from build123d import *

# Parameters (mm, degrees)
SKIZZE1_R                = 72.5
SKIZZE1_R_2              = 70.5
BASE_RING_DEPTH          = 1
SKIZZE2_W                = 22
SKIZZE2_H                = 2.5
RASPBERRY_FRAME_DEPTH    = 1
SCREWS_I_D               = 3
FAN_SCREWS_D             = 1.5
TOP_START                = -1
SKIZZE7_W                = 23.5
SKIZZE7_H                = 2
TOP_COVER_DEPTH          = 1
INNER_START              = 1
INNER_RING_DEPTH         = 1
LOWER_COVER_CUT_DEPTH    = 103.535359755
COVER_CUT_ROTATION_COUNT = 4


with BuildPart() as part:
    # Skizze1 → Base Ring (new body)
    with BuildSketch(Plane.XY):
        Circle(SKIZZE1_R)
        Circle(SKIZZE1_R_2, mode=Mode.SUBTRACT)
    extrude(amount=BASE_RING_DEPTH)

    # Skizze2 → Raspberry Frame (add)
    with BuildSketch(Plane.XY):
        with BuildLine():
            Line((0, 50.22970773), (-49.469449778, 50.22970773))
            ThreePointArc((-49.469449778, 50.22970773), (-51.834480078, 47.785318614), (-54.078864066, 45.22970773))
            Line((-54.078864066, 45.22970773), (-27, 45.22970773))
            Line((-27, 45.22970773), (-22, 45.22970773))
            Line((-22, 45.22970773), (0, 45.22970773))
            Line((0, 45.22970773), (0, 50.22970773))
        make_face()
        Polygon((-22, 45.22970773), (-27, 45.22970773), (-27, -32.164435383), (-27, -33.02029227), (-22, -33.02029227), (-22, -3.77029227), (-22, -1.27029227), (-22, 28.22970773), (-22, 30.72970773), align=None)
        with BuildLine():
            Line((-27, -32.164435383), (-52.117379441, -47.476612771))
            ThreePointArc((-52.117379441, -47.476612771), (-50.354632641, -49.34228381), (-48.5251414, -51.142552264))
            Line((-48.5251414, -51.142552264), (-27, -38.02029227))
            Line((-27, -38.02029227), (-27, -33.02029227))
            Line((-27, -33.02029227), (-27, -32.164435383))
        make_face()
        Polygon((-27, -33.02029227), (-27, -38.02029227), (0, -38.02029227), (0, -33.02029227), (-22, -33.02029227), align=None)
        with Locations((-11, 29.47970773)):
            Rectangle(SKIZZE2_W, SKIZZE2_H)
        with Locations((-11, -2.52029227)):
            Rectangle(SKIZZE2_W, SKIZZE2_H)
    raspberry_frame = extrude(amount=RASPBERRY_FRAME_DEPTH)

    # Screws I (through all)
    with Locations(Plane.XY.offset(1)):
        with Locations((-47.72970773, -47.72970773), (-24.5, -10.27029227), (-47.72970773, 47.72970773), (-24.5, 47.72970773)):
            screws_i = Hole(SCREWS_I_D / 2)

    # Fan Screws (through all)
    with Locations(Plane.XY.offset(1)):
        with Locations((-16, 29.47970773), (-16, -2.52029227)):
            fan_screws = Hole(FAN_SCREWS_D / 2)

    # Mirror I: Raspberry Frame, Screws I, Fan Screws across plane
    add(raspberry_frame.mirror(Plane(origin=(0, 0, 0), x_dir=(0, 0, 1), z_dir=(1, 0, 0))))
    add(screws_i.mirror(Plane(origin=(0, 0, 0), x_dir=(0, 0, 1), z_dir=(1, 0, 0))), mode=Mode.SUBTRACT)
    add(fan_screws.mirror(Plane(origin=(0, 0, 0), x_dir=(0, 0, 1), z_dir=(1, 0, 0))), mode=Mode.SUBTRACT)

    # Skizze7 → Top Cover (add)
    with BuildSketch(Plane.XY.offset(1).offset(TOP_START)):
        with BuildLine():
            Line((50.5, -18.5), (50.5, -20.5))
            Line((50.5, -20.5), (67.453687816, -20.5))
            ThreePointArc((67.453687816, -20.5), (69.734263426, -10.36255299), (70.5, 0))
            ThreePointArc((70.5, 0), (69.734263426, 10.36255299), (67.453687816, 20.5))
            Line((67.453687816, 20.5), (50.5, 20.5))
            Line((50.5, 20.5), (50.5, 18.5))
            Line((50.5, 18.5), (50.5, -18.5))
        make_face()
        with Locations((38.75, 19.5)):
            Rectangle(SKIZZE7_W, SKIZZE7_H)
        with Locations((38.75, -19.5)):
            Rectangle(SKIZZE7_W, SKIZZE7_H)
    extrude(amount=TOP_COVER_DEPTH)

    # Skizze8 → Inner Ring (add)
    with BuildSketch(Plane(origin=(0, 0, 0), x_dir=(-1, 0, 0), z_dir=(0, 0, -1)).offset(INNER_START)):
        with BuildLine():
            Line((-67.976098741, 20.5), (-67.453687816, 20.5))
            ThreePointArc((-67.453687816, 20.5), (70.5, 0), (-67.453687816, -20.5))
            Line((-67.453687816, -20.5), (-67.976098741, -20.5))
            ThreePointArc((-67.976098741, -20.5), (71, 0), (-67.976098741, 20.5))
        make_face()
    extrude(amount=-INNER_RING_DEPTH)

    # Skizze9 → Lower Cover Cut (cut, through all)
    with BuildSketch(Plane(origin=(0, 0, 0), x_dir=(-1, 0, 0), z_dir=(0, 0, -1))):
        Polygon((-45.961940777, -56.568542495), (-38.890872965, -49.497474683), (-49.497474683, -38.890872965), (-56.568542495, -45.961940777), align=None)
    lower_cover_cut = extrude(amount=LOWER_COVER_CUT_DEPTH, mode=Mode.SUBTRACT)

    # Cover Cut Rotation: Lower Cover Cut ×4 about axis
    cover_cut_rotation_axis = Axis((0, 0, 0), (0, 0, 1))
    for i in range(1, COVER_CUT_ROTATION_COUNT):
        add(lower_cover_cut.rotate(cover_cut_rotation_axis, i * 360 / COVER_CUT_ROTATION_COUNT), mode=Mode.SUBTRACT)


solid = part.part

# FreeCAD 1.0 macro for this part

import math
import FreeCAD as App
import Part
import Sketcher
Q = App.Units.Quantity


def add_polygon(sketch, points):
    """Adds a closed chain of lines whose ends are joined by coincident constraints."""
    first, n = sketch.GeometryCount, len(points)
    for a, b in zip(points, points[1:] + points[:1]):
        sketch.addGeometry(Part.LineSegment(App.Vector(*a, 0), App.Vector(*b, 0)), False)
    for i in range(n):
        sketch.addConstraint(Sketcher.Constraint("Coincident", first + i, 2, first + (i + 1) % n, 1))

doc = App.newDocument("Part")
body = doc.addObject("PartDesign::Body", "Body")

sketch1 = body.newObject("Sketcher::SketchObject", "Sketch")
sketch1.AttachmentSupport = (doc.getObject("XY_Plane"), [""])
sketch1.MapMode = "FlatFace"
sketch1.addGeometry([
    Part.Circle(App.Vector(0, 0, 0), App.Vector(0, 0, 1), 72),
    Part.Circle(App.Vector(0, 0, 0), App.Vector(0, 0, 1), 70),
], False)
sketch1.addConstraint([
    Sketcher.Constraint("Coincident", 0, 3, -1, 1),
    Sketcher.Constraint("Coincident", 1, 3, -1, 1),
    Sketcher.Constraint("Diameter", 0, Q("145 mm")),
    Sketcher.Constraint("Diameter", 1, Q("141 mm")),
])
pad1 = body.newObject("PartDesign::Pad", "Pad")
pad1.Profile = sketch1
pad1.Length = 1

sketch2 = body.newObject("Sketcher::SketchObject", "Sketch001")
sketch2.AttachmentSupport = (doc.getObject("XY_Plane"), [""])
sketch2.MapMode = "FlatFace"
sketch2.addGeometry([
    Part.LineSegment(App.Vector(0, 50.2, 0), App.Vector(-49.5, 50.2, 0)),
    Part.ArcOfCircle(Part.Circle(App.Vector(0, 0, 0), App.Vector(0, 0, 1), 70.5), math.radians(134.56), math.radians(140.09)),
    Part.LineSegment(App.Vector(-54.1, 45.2, 0), App.Vector(-27, 45.2, 0)),
    Part.LineSegment(App.Vector(-27, 45.2, 0), App.Vector(-27, -32.2, 0)),
    Part.LineSegment(App.Vector(-27, -32.2, 0), App.Vector(-52.1, -47.5, 0)),
    Part.ArcOfCircle(Part.Circle(App.Vector(0, 0, 0), App.Vector(0, 0, 1), 70.5), math.radians(-137.67), math.radians(-133.5)),
    Part.LineSegment(App.Vector(-48.5, -51.1, 0), App.Vector(-27, -38, 0)),
    Part.LineSegment(App.Vector(-27, -38, 0), App.Vector(0, -38, 0)),
    Part.LineSegment(App.Vector(0, -38, 0), App.Vector(0, -33, 0)),
    Part.LineSegment(App.Vector(0, -33, 0), App.Vector(-22, -33, 0)),
    Part.LineSegment(App.Vector(-22, -33, 0), App.Vector(-22, -3.8, 0)),
    Part.LineSegment(App.Vector(-22, -3.8, 0), App.Vector(0, -3.8, 0)),
    Part.LineSegment(App.Vector(0, -3.8, 0), App.Vector(0, -1.3, 0)),
    Part.LineSegment(App.Vector(0, -1.3, 0), App.Vector(-22, -1.3, 0)),
    Part.LineSegment(App.Vector(-22, -1.3, 0), App.Vector(-22, 28.2, 0)),
    Part.LineSegment(App.Vector(-22, 28.2, 0), App.Vector(0, 28.2, 0)),
    Part.LineSegment(App.Vector(0, 28.2, 0), App.Vector(0, 30.7, 0)),
    Part.LineSegment(App.Vector(0, 30.7, 0), App.Vector(-22, 30.7, 0)),
    Part.LineSegment(App.Vector(-22, 30.7, 0), App.Vector(-22, 45.2, 0)),
    Part.LineSegment(App.Vector(-22, 45.2, 0), App.Vector(0, 45.2, 0)),
    Part.LineSegment(App.Vector(0, 45.2, 0), App.Vector(0, 50.2, 0)),
], False)
sketch2.addConstraint([
    Sketcher.Constraint("Coincident", 0, 2, 1, 1),
    Sketcher.Constraint("Coincident", 1, 2, 2, 1),
    Sketcher.Constraint("Coincident", 2, 2, 3, 1),
    Sketcher.Constraint("Coincident", 3, 2, 4, 1),
    Sketcher.Constraint("Coincident", 4, 2, 5, 1),
    Sketcher.Constraint("Coincident", 5, 2, 6, 1),
    Sketcher.Constraint("Coincident", 6, 2, 7, 1),
    Sketcher.Constraint("Coincident", 7, 2, 8, 1),
    Sketcher.Constraint("Coincident", 8, 2, 9, 1),
    Sketcher.Constraint("Coincident", 9, 2, 10, 1),
    Sketcher.Constraint("Coincident", 10, 2, 11, 1),
    Sketcher.Constraint("Coincident", 11, 2, 12, 1),
    Sketcher.Constraint("Coincident", 12, 2, 13, 1),
    Sketcher.Constraint("Coincident", 13, 2, 14, 1),
    Sketcher.Constraint("Coincident", 14, 2, 15, 1),
    Sketcher.Constraint("Coincident", 15, 2, 16, 1),
    Sketcher.Constraint("Coincident", 16, 2, 17, 1),
    Sketcher.Constraint("Coincident", 17, 2, 18, 1),
    Sketcher.Constraint("Coincident", 18, 2, 19, 1),
    Sketcher.Constraint("Coincident", 19, 2, 20, 1),
    Sketcher.Constraint("Coincident", 20, 2, 0, 1),
    Sketcher.Constraint("Horizontal", 0),
    Sketcher.Constraint("Horizontal", 2),
    Sketcher.Constraint("Vertical", 3),
    Sketcher.Constraint("Horizontal", 7),
    Sketcher.Constraint("Vertical", 8),
    Sketcher.Constraint("Horizontal", 9),
    Sketcher.Constraint("Vertical", 10),
    Sketcher.Constraint("Horizontal", 11),
    Sketcher.Constraint("Vertical", 12),
    Sketcher.Constraint("Horizontal", 13),
    Sketcher.Constraint("Vertical", 14),
    Sketcher.Constraint("Horizontal", 15),
    Sketcher.Constraint("Vertical", 16),
    Sketcher.Constraint("Horizontal", 17),
    Sketcher.Constraint("Vertical", 18),
    Sketcher.Constraint("Horizontal", 19),
    Sketcher.Constraint("Vertical", 20),
    Sketcher.Constraint("Coincident", 1, 3, -1, 1),
    Sketcher.Constraint("Coincident", 5, 3, -1, 1),
    Sketcher.Constraint("Equal", 1, 5),
    Sketcher.Constraint("PointOnObject", 7, 2, -2),
    Sketcher.Constraint("PointOnObject", 11, 2, -2),
    Sketcher.Constraint("PointOnObject", 15, 2, -2),
    Sketcher.Constraint("PointOnObject", 19, 2, -2),
    Sketcher.Constraint("Parallel", 4, 6),
    Sketcher.Constraint("Horizontal", 2, 2, 18, 2),
    Sketcher.Constraint("Vertical", 3, 2, 6, 2),
    Sketcher.Constraint("Vertical", 10, 2, 13, 2),
    Sketcher.Constraint("Vertical", 14, 2, 17, 2),
    Sketcher.Constraint("Equal", 12, 16),
    Sketcher.Constraint("Equal", 8, 20),
    Sketcher.Constraint("Radius", 1, Q("70.5 mm")),
    Sketcher.Constraint("DistanceX", 7, 1, 7, 2, Q("27 mm")),
    Sketcher.Constraint("DistanceX", 9, 2, 9, 1, Q("22 mm")),
    Sketcher.Constraint("DistanceY", 8, 1, 8, 2, Q("5 mm")),
    Sketcher.Constraint("DistanceY", 12, 1, 12, 2, Q("2.5 mm")),
    Sketcher.Constraint("DistanceY", 14, 1, 14, 2, Q("29.5 mm")),
    Sketcher.Constraint("DistanceY", 18, 1, 18, 2, Q("14.5 mm")),
    Sketcher.Constraint("DistanceY", 10, 1, 10, 2, Q("29.25 mm")),
    Sketcher.Constraint("DistanceX", 0, 2, 0, 1, Q("49.46945 mm")),
    Sketcher.Constraint("Distance", 6, Q("25.20963 mm")),
    Sketcher.Constraint("DistanceY", 3, 2, 3, 1, Q("77.394143 mm")),
])
pad2 = body.newObject("PartDesign::Pad", "Pad001")
pad2.Profile = sketch2
pad2.Length = 1

sketch3 = body.newObject("Sketcher::SketchObject", "Sketch002")
sketch3.AttachmentSupport = (doc.getObject("XY_Plane"), [""])
sketch3.MapMode = "FlatFace"
sketch3.AttachmentOffset = App.Placement(App.Vector(0, 0, 1), App.Rotation())
sketch3.addGeometry([
    Part.Circle(App.Vector(-47.7, -47.7, 0), App.Vector(0, 0, 1), 1.5),
    Part.Circle(App.Vector(-24.5, -10.3, 0), App.Vector(0, 0, 1), 1.5),
    Part.Circle(App.Vector(-47.7, 47.7, 0), App.Vector(0, 0, 1), 1.5),
    Part.Circle(App.Vector(-24.5, 47.7, 0), App.Vector(0, 0, 1), 1.5),
], False)
sketch3.addConstraint([
    Sketcher.Constraint("Equal", 0, 1),
    Sketcher.Constraint("Equal", 1, 2),
    Sketcher.Constraint("Equal", 2, 3),
    Sketcher.Constraint("Symmetric", 0, 3, 2, 3, -1),
    Sketcher.Constraint("Horizontal", 2, 3, 3, 3),
    Sketcher.Constraint("Vertical", 1, 3, 3, 3),
    Sketcher.Constraint("Diameter", 0, Q("3 mm")),
    Sketcher.Constraint("DistanceY", 1, 3, 2, 3, Q("58 mm")),
    Sketcher.Constraint("DistanceX", 1, 3, -1, 1, Q("24.5 mm")),
    Sketcher.Constraint("DistanceX", 0, 3, -1, 1, Q("47.729708 mm")),
    Sketcher.Constraint("DistanceY", 0, 3, -1, 1, Q("47.729708 mm")),
])
doc.recompute()
hole = body.newObject("PartDesign::Hole", "Hole")
hole.Profile = sketch3
hole.ThreadType = "None"
hole.Diameter = 3
hole.DepthType = "ThroughAll"

sketch4 = body.newObject("Sketcher::SketchObject", "Sketch003")
sketch4.AttachmentSupport = (doc.getObject("XY_Plane"), [""])
sketch4.MapMode = "FlatFace"
sketch4.AttachmentOffset = App.Placement(App.Vector(0, 0, 1), App.Rotation())
sketch4.addGeometry([
    Part.Circle(App.Vector(-16, 29.5, 0), App.Vector(0, 0, 1), 0.8),
    Part.Circle(App.Vector(-16, -2.5, 0), App.Vector(0, 0, 1), 0.8),
], False)
sketch4.addConstraint([
    Sketcher.Constraint("Equal", 0, 1),
    Sketcher.Constraint("Vertical", 0, 3, 1, 3),
    Sketcher.Constraint("Diameter", 0, Q("1.5 mm")),
    Sketcher.Constraint("DistanceX", 0, 3, -1, 1, Q("16 mm")),
    Sketcher.Constraint("DistanceY", 1, 3, 0, 3, Q("32 mm")),
    Sketcher.Constraint("DistanceY", -1, 1, 0, 3, Q("29.479708 mm")),
])
doc.recompute()
hole2 = body.newObject("PartDesign::Hole", "Hole001")
hole2.Profile = sketch4
hole2.ThreadType = "None"
hole2.Diameter = 1.5
hole2.DepthType = "ThroughAll"
doc.recompute()

mirrored = body.newObject("PartDesign::Mirrored", "Mirrored")
mirrored.Originals = [pad2, hole, hole2]
mirrored.MirrorPlane = (doc.getObject("YZ_Plane"), [""])
body.Tip = mirrored

sketch5 = body.newObject("Sketcher::SketchObject", "Sketch004")
sketch5.AttachmentSupport = (doc.getObject("XY_Plane"), [""])
sketch5.MapMode = "FlatFace"
sketch5.addGeometry([
    Part.ArcOfCircle(Part.Circle(App.Vector(0, 0, 0), App.Vector(0, 0, 1), 70.5), math.radians(-16.9), math.radians(0)),
    Part.ArcOfCircle(Part.Circle(App.Vector(0, 0, 0), App.Vector(0, 0, 1), 70.5), math.radians(0), math.radians(16.9)),
    Part.LineSegment(App.Vector(67.5, 20.5, 0), App.Vector(27, 20.5, 0)),
    Part.LineSegment(App.Vector(27, 20.5, 0), App.Vector(27, 18.5, 0)),
    Part.LineSegment(App.Vector(27, 18.5, 0), App.Vector(50.5, 18.5, 0)),
    Part.LineSegment(App.Vector(50.5, 18.5, 0), App.Vector(50.5, -18.5, 0)),
    Part.LineSegment(App.Vector(50.5, -18.5, 0), App.Vector(27, -18.5, 0)),
    Part.LineSegment(App.Vector(27, -18.5, 0), App.Vector(27, -20.5, 0)),
    Part.LineSegment(App.Vector(27, -20.5, 0), App.Vector(67.5, -20.5, 0)),
], False)
sketch5.addConstraint([
    Sketcher.Constraint("Tangent", 0, 2, 1, 1),
    Sketcher.Constraint("Coincident", 1, 2, 2, 1),
    Sketcher.Constraint("Coincident", 2, 2, 3, 1),
    Sketcher.Constraint("Coincident", 3, 2, 4, 1),
    Sketcher.Constraint("Coincident", 4, 2, 5, 1),
    Sketcher.Constraint("Coincident", 5, 2, 6, 1),
    Sketcher.Constraint("Coincident", 6, 2, 7, 1),
    Sketcher.Constraint("Coincident", 7, 2, 8, 1),
    Sketcher.Constraint("Coincident", 8, 2, 0, 1),
    Sketcher.Constraint("Horizontal", 2),
    Sketcher.Constraint("Vertical", 3),
    Sketcher.Constraint("Horizontal", 4),
    Sketcher.Constraint("Vertical", 5),
    Sketcher.Constraint("Horizontal", 6),
    Sketcher.Constraint("Vertical", 7),
    Sketcher.Constraint("Horizontal", 8),
    Sketcher.Constraint("Coincident", 0, 3, -1, 1),
    Sketcher.Constraint("Equal", 0, 1),
    Sketcher.Constraint("Symmetric", 3, 2, 6, 2, -1),
    Sketcher.Constraint("PointOnObject", 0, 2, -1),
    Sketcher.Constraint("Vertical", 1, 2, 8, 2),
    Sketcher.Constraint("Radius", 0, Q("70.5 mm")),
    Sketcher.Constraint("DistanceY", 3, 2, 3, 1, Q("2 mm")),
    Sketcher.Constraint("DistanceY", 5, 2, 5, 1, Q("37 mm")),
    Sketcher.Constraint("DistanceX", 4, 1, 4, 2, Q("23.5 mm")),
    Sketcher.Constraint("DistanceX", -1, 1, 2, 2, Q("27 mm")),
])
pad3 = body.newObject("PartDesign::Pad", "Pad002")
pad3.Profile = sketch5
pad3.Length = 1

sketch6 = body.newObject("Sketcher::SketchObject", "Sketch005")
sketch6.AttachmentSupport = (doc.getObject("XY_Plane"), [""])
sketch6.MapMode = "FlatFace"
sketch6.AttachmentOffset = App.Placement(App.Vector(0, 0, -1), App.Rotation())
sketch6.addGeometry([
    Part.LineSegment(App.Vector(68, 20.5, 0), App.Vector(67.5, 20.5, 0)),
    Part.ArcOfCircle(Part.Circle(App.Vector(0, 0, 0), App.Vector(0, 0, 1), 70.5), math.radians(17), math.radians(343)),
    Part.LineSegment(App.Vector(67.5, -20.5, 0), App.Vector(68, -20.5, 0)),
    Part.ArcOfCircle(Part.Circle(App.Vector(0, 0, 0), App.Vector(0, 0, 1), 71), math.radians(17), math.radians(343)),
], False)
sketch6.addConstraint([
    Sketcher.Constraint("Coincident", 0, 2, 1, 1),
    Sketcher.Constraint("Coincident", 1, 2, 2, 1),
    Sketcher.Constraint("Coincident", 2, 2, 3, 2),
    Sketcher.Constraint("Coincident", 3, 1, 0, 1),
    Sketcher.Constraint("Horizontal", 0),
    Sketcher.Constraint("Horizontal", 2),
    Sketcher.Constraint("Coincident", 1, 3, -1, 1),
    Sketcher.Constraint("Coincident", 3, 3, -1, 1),
    Sketcher.Constraint("Vertical", 0, 2, 1, 2),
    Sketcher.Constraint("Radius", 3, Q("71 mm")),
    Sketcher.Constraint("Radius", 1, Q("70.5 mm")),
    Sketcher.Constraint("DistanceY", 1, 2, 0, 2, Q("41 mm")),
])
pad4 = body.newObject("PartDesign::Pad", "Pad003")
pad4.Profile = sketch6
pad4.Length = 1

sketch7 = body.newObject("Sketcher::SketchObject", "Sketch006")
sketch7.AttachmentSupport = (doc.getObject("XY_Plane"), [""])
sketch7.MapMode = "FlatFace"
add_polygon(sketch7, [(46, -57), (39, -49), (49, -39), (57, -46)])
sketch7.addConstraint([
    Sketcher.Constraint("Perpendicular", 0, 1),
    Sketcher.Constraint("Perpendicular", 1, 2),
    Sketcher.Constraint("Perpendicular", 2, 3),
    Sketcher.Constraint("Angle", 0, Q("135 deg")),
    Sketcher.Constraint("Distance", 0, Q("10 mm")),
    Sketcher.Constraint("Distance", 1, Q("15 mm")),
    Sketcher.Constraint("DistanceY", 2, 2, -1, 1, Q("45.961941 mm")),
    Sketcher.Constraint("DistanceX", -1, 1, 3, 2, Q("45.961941 mm")),
])
pocket1 = body.newObject("PartDesign::Pocket", "Pocket")
pocket1.Profile = sketch7
pocket1.Type = "ThroughAll"
doc.recompute()

polarpattern = body.newObject("PartDesign::PolarPattern", "PolarPattern")
polarpattern.Originals = [pocket1]
polarpattern.Axis = (doc.getObject("Z_Axis"), [""])
polarpattern.Angle = 360
polarpattern.Occurrences = 4
body.Tip = polarpattern

doc.recompute()
